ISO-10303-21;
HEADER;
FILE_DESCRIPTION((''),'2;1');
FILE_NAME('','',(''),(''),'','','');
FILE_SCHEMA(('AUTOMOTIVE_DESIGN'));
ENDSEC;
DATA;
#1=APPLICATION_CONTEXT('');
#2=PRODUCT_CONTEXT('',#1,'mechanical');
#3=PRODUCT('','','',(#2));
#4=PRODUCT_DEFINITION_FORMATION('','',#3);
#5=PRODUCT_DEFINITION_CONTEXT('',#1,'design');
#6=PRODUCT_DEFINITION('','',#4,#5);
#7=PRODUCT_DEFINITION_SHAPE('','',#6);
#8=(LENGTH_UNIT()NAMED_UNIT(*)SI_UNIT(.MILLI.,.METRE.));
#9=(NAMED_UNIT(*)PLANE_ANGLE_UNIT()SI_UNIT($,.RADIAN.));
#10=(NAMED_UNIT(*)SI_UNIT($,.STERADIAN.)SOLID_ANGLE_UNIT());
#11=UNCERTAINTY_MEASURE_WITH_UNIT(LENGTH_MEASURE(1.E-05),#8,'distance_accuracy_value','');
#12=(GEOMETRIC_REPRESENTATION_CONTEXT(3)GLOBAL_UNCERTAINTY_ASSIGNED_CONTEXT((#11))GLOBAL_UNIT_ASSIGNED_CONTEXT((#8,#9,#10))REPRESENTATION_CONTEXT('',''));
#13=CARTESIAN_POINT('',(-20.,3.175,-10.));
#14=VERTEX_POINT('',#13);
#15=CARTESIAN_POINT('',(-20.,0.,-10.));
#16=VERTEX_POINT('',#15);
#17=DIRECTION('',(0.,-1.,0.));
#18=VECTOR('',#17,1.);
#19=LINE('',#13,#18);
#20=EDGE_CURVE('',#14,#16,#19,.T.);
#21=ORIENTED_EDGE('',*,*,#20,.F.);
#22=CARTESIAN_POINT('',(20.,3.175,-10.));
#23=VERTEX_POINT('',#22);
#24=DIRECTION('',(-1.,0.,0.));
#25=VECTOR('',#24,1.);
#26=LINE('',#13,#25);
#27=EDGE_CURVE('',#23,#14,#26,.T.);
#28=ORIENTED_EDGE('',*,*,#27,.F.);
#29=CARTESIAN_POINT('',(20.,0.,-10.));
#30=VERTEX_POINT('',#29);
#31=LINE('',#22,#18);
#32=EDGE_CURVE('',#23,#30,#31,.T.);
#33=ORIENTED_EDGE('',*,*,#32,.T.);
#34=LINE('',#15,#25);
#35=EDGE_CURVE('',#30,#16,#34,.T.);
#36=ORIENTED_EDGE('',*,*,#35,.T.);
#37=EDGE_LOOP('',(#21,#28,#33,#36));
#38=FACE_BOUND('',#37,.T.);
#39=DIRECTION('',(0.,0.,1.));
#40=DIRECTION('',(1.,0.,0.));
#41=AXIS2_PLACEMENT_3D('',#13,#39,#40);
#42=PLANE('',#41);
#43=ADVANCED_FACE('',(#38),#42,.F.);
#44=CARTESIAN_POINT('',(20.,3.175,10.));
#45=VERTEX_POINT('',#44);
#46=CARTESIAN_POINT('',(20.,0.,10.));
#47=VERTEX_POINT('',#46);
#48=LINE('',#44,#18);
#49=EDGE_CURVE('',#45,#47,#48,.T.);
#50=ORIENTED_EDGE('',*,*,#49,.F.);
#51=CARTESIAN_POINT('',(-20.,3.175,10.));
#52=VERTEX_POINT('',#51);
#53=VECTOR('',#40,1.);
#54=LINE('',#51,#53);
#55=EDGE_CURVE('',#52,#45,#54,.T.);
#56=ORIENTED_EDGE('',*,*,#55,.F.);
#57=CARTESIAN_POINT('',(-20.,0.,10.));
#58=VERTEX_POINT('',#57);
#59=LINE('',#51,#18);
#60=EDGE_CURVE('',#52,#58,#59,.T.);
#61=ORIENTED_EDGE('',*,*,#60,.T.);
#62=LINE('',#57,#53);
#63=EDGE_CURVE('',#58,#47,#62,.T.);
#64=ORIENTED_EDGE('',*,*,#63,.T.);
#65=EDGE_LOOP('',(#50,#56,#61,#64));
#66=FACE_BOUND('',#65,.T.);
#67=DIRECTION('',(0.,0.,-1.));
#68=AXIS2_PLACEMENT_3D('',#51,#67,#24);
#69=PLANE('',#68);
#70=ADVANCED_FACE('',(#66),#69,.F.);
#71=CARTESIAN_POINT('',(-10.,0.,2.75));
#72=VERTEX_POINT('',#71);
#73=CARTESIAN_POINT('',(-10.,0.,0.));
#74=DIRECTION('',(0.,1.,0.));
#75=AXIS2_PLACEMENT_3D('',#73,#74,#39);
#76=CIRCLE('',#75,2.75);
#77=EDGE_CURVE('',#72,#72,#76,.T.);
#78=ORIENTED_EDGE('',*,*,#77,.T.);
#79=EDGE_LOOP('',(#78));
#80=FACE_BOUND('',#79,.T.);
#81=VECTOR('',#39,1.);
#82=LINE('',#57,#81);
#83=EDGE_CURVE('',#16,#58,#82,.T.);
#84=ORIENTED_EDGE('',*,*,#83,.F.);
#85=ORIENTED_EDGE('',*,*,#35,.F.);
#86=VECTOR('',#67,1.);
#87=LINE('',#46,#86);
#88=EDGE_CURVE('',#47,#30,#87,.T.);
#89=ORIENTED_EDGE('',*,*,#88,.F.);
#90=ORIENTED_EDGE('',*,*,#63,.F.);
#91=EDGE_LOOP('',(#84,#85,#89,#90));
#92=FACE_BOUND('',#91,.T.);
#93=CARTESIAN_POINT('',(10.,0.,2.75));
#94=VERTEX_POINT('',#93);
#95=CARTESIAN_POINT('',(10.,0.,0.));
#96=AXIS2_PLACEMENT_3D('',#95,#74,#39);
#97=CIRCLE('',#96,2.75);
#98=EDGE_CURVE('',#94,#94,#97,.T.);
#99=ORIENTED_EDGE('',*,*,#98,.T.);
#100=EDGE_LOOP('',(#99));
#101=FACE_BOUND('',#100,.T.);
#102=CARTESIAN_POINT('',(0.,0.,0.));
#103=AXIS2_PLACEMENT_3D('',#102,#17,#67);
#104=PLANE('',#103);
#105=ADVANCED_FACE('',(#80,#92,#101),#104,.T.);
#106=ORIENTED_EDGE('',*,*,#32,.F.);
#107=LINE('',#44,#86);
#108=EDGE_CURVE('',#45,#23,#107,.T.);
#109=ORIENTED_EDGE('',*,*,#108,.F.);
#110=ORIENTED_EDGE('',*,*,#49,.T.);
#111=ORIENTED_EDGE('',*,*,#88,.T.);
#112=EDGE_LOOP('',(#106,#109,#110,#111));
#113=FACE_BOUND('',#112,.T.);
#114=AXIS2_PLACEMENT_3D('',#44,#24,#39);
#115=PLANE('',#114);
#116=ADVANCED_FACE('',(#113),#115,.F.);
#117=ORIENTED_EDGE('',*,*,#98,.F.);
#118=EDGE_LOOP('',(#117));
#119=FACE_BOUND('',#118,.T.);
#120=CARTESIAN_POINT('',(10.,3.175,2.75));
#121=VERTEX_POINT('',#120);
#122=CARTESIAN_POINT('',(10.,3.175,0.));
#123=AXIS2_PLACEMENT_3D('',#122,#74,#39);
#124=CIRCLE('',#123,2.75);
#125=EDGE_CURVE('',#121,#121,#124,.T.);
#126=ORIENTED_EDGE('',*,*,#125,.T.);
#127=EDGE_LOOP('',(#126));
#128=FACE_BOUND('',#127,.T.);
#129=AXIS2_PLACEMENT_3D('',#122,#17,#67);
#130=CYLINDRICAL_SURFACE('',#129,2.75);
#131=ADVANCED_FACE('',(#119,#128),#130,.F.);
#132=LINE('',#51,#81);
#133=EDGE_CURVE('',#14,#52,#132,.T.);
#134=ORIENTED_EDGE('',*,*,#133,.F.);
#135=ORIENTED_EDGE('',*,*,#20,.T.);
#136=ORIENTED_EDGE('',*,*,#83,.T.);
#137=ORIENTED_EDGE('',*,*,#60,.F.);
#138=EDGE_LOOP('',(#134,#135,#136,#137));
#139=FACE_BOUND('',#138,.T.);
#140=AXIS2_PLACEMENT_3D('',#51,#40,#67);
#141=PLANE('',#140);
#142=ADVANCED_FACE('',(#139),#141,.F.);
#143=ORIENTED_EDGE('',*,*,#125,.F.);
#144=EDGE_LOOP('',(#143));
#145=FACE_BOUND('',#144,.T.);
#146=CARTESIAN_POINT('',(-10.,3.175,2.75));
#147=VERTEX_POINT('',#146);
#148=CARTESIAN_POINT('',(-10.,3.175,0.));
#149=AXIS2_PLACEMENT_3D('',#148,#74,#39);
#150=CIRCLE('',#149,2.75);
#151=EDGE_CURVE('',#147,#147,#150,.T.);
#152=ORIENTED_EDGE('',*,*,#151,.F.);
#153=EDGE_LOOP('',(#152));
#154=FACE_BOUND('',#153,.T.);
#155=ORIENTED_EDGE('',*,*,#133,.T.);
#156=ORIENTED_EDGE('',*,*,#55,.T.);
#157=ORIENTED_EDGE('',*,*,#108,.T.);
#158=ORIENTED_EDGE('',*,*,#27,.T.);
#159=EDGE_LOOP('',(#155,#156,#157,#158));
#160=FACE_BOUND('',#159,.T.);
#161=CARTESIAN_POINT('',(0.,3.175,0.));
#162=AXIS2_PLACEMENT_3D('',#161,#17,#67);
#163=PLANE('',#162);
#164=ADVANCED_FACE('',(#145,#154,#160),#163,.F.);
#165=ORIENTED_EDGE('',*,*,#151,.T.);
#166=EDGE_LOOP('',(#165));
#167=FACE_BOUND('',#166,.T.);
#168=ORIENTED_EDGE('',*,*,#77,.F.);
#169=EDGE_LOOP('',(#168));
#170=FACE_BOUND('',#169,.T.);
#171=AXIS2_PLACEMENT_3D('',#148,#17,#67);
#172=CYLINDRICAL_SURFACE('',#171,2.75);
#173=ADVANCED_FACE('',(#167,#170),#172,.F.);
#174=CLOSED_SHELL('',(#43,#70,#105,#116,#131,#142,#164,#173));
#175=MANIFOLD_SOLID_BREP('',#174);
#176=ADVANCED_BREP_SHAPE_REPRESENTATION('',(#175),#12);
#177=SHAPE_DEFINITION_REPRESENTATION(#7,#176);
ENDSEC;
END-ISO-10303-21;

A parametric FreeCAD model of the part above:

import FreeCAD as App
import Part
import Sketcher


def add_polygon(sketch, points):
    """Adds a closed chain of lines whose ends are joined by coincident constraints."""
    first, n = sketch.GeometryCount, len(points)
    for a, b in zip(points, points[1:] + points[:1]):
        sketch.addGeometry(Part.LineSegment(App.Vector(*a, 0), App.Vector(*b, 0)), False)
    for i in range(n):
        sketch.addConstraint(Sketcher.Constraint("Coincident", first + i, 2, first + (i + 1) % n, 1))

doc = App.newDocument("Part")
body = doc.addObject("PartDesign::Body", "Body")

sketch1 = body.newObject("Sketcher::SketchObject", "Sketch")
sketch1.AttachmentSupport = (doc.getObject("XZ_Plane"), [""])
sketch1.MapMode = "FlatFace"
add_polygon(sketch1, [(-20, -10), (-20, 10), (20, 10), (20, -10)])
sketch1.addGeometry(Part.Circle(App.Vector(-10, 0, 0), App.Vector(0, 0, 1), 2.8), False)
sketch1.addGeometry(Part.Circle(App.Vector(10, 0, 0), App.Vector(0, 0, 1), 2.8), False)
sketch1.addConstraint([
    Sketcher.Constraint("Vertical", 0),
    Sketcher.Constraint("Horizontal", 1),
    Sketcher.Constraint("Vertical", 2),
    Sketcher.Constraint("Horizontal", 3),
    Sketcher.Constraint("Equal", 4, 5),
    Sketcher.Constraint("Symmetric", 4, 3, 5, 3, -1, 1),
    Sketcher.Constraint("Symmetric", 0, 2, 2, 2, -1, 1),
    Sketcher.Constraint("PointOnObject", 4, 3, -1),
    Sketcher.Constraint("Diameter", 4, 5.5),
    Sketcher.Constraint("DistanceX", 1, 1, 1, 2, 40.0),
    Sketcher.Constraint("DistanceY", 0, 1, 0, 2, 20.0),
    Sketcher.Constraint("DistanceX", 4, 3, -1, 1, 10.0),
])
pad1 = body.newObject("PartDesign::Pad", "Pad")
pad1.Profile = sketch1
pad1.Length = 3.175
pad1.Reversed = True

doc.recompute()
